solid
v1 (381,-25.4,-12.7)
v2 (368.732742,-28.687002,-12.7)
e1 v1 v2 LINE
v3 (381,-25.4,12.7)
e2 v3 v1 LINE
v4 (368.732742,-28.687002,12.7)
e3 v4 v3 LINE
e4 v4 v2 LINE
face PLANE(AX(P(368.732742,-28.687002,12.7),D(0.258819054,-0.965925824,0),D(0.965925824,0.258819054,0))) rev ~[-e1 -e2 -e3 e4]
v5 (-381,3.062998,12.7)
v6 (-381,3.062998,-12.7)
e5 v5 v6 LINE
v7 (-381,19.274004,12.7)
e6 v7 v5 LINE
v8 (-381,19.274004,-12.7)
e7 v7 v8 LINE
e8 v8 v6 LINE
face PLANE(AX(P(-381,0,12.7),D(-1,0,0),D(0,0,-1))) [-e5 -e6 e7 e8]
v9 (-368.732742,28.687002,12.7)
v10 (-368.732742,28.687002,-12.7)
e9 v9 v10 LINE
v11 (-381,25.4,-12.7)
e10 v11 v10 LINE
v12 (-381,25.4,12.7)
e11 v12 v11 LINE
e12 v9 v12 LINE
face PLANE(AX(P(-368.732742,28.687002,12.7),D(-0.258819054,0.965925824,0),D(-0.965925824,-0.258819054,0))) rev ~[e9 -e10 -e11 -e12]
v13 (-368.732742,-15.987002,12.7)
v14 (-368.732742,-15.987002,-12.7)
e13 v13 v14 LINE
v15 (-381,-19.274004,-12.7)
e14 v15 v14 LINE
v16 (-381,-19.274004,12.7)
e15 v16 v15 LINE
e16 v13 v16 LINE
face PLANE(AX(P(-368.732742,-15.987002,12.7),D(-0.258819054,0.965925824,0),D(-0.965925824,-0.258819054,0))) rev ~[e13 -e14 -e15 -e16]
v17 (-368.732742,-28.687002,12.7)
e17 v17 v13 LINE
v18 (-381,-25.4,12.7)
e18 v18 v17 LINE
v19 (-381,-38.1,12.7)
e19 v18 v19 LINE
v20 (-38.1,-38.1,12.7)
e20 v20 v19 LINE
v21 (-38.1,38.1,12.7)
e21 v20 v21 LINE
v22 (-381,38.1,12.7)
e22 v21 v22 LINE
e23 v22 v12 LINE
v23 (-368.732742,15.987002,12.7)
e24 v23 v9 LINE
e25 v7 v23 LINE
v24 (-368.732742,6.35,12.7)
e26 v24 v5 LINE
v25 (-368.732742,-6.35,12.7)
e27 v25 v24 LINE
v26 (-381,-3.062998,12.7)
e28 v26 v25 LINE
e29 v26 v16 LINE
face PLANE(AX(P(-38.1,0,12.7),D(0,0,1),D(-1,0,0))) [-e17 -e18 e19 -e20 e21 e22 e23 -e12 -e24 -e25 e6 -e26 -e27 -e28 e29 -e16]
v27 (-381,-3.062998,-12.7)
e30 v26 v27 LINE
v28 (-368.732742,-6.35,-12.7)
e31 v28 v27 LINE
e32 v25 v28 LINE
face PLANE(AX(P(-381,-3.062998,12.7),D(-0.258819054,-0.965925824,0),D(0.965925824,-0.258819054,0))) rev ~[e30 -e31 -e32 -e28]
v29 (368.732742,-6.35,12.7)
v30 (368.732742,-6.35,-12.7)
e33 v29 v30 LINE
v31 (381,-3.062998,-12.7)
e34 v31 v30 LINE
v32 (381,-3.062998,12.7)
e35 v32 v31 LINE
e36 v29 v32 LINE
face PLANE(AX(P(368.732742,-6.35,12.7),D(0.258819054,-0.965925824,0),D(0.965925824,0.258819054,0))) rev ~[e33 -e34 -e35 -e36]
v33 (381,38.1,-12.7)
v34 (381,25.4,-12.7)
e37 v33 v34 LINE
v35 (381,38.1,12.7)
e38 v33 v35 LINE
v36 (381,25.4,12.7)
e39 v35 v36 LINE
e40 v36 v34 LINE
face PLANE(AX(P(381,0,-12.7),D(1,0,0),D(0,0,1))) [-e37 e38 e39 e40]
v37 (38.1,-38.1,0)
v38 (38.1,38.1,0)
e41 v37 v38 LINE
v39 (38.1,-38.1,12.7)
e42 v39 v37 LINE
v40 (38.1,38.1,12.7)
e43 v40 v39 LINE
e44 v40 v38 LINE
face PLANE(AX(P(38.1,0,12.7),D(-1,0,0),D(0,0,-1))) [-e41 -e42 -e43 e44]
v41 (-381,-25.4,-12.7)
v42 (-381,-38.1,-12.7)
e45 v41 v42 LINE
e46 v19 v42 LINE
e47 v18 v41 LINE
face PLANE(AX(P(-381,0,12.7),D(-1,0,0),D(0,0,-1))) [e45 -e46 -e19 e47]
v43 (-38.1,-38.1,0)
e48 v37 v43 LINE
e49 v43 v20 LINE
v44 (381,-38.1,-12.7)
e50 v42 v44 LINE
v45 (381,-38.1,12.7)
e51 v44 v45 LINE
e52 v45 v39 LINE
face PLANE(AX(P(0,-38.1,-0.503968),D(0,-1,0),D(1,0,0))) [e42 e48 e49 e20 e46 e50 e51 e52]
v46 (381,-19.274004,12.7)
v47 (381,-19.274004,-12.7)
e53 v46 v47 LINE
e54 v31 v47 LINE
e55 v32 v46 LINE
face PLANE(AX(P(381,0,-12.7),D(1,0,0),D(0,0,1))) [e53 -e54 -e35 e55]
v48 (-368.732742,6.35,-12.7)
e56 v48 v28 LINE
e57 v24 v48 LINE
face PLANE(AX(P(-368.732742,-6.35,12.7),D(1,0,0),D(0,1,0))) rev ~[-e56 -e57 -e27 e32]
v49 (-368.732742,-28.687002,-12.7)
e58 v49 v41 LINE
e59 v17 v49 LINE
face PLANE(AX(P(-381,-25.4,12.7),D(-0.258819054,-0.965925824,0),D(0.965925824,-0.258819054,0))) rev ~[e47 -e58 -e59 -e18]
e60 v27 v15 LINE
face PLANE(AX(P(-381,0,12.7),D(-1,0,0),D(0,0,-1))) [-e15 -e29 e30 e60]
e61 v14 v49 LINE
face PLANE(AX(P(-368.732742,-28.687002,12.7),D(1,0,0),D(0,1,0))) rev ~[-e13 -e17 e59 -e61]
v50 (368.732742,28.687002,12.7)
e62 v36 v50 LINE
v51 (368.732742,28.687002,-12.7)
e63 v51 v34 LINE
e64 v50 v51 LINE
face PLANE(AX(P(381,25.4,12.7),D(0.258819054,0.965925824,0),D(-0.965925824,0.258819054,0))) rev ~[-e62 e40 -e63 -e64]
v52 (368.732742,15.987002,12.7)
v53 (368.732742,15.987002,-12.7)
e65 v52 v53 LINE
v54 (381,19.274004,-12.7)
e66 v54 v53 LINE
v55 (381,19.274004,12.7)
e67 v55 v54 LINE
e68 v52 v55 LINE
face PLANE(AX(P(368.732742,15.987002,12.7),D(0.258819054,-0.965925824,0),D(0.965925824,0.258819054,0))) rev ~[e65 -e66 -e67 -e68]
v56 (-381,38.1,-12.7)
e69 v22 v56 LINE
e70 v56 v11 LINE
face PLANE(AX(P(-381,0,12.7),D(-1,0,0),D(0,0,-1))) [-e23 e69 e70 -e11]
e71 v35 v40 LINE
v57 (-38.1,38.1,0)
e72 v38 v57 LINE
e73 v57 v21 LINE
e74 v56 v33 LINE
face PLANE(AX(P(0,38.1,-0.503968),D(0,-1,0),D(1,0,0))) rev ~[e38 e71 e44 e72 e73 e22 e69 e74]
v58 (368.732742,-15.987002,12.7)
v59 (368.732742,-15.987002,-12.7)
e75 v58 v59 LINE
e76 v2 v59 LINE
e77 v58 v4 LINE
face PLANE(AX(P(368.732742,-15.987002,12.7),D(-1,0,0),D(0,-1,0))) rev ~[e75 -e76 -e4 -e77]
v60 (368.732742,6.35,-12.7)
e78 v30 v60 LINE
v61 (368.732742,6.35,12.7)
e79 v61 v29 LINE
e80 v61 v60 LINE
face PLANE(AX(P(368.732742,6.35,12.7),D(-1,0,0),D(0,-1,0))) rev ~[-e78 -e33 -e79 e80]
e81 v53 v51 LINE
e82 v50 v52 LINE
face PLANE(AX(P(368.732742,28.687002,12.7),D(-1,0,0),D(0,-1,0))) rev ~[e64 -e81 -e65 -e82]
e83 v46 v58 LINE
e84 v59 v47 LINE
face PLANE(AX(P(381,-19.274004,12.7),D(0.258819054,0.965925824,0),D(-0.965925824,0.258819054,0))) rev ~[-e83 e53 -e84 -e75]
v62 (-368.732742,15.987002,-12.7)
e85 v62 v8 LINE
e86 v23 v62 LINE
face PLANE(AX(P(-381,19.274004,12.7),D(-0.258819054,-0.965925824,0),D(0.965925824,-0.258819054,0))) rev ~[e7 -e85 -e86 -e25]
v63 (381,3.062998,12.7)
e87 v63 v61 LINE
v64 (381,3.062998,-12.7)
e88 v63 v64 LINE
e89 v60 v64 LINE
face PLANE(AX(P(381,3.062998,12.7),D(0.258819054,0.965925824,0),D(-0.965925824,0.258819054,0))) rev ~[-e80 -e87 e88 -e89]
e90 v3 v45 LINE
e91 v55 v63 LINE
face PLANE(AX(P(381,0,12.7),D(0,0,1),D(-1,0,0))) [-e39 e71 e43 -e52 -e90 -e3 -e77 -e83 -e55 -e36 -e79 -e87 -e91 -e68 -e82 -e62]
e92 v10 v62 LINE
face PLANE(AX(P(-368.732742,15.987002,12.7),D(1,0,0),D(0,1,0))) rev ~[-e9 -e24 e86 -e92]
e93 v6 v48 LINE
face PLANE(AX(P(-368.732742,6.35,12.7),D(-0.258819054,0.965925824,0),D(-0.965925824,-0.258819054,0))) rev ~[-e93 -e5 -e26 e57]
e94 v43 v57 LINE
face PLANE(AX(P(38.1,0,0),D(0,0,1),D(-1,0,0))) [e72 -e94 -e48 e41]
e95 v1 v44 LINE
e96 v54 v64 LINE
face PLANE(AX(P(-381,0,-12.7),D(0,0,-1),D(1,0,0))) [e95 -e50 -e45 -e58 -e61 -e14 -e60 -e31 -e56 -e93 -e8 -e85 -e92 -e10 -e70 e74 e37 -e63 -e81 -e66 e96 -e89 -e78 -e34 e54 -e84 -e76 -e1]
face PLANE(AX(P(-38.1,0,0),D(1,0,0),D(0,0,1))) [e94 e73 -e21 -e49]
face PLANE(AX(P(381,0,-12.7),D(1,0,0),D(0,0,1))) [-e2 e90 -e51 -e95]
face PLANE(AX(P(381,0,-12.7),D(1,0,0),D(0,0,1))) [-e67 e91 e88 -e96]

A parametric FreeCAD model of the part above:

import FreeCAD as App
import Part
import Sketcher

V = App.Vector
Q = App.Units.Quantity

doc = App.newDocument("Part")
body = doc.addObject("PartDesign::Body", "Body")

# Sketch on XZ plane
sketch1 = body.newObject("Sketcher::SketchObject", "Sketch")
sketch1.AttachmentSupport = (doc.getObject("XZ_Plane"), [""])
sketch1.MapMode = "FlatFace"
sketch1.addGeometry(Part.LineSegment(V(-38, 13, 0), V(-381, 13, 0)), False)
sketch1.addGeometry(Part.LineSegment(V(-381, 13, 0), V(-381, -13, 0)), False)
sketch1.addGeometry(Part.LineSegment(V(-381, -13, 0), V(381, -13, 0)), False)
sketch1.addGeometry(Part.LineSegment(V(381, -13, 0), V(381, 13, 0)), False)
sketch1.addGeometry(Part.LineSegment(V(381, 13, 0), V(38, 13, 0)), False)
sketch1.addGeometry(Part.LineSegment(V(38, 13, 0), V(38, 0, 0)), False)
sketch1.addGeometry(Part.LineSegment(V(38, 0, 0), V(-38, 0, 0)), False)
sketch1.addGeometry(Part.LineSegment(V(-38, 0, 0), V(-38, 13, 0)), False)
sketch1.addConstraint(Sketcher.Constraint("Coincident", 0, 2, 1, 1))
sketch1.addConstraint(Sketcher.Constraint("Coincident", 1, 2, 2, 1))
sketch1.addConstraint(Sketcher.Constraint("Coincident", 2, 2, 3, 1))
sketch1.addConstraint(Sketcher.Constraint("Coincident", 3, 2, 4, 1))
sketch1.addConstraint(Sketcher.Constraint("Coincident", 4, 2, 5, 1))
sketch1.addConstraint(Sketcher.Constraint("Coincident", 5, 2, 6, 1))
sketch1.addConstraint(Sketcher.Constraint("Coincident", 6, 2, 7, 1))
sketch1.addConstraint(Sketcher.Constraint("Coincident", 7, 2, 0, 1))
sketch1.addConstraint(Sketcher.Constraint("Horizontal", 0))
sketch1.addConstraint(Sketcher.Constraint("Vertical", 1))
sketch1.addConstraint(Sketcher.Constraint("Horizontal", 2))
sketch1.addConstraint(Sketcher.Constraint("Vertical", 3))
sketch1.addConstraint(Sketcher.Constraint("Horizontal", 4))
sketch1.addConstraint(Sketcher.Constraint("Vertical", 5))
sketch1.addConstraint(Sketcher.Constraint("Horizontal", 6))
sketch1.addConstraint(Sketcher.Constraint("Vertical", 7))
sketch1.addConstraint(Sketcher.Constraint("Symmetric", 0, 2, 2, 2, -1, 1))
sketch1.addConstraint(Sketcher.Constraint("Symmetric", 5, 2, 6, 2, -1, 1))
sketch1.addConstraint(Sketcher.Constraint("Horizontal", 0, 2, 3, 2))
sketch1.addConstraint(Sketcher.Constraint("DistanceX", 2, 1, 2, 2, Q("30 in")))
sketch1.addConstraint(Sketcher.Constraint("DistanceX", 6, 2, 6, 1, Q("3 in")))
sketch1.addConstraint(Sketcher.Constraint("DistanceY", 1, 2, 1, 1, Q("1 in")))
pad1 = body.newObject("PartDesign::Pad", "Pad")
pad1.Profile = sketch1
pad1.Length = Q("3 in")
pad1.Midplane = True

# Sketch on XY plane
sketch2 = body.newObject("Sketcher::SketchObject", "Sketch001")
sketch2.AttachmentSupport = (doc.getObject("XY_Plane"), [""])
sketch2.MapMode = "FlatFace"
sketch2.AttachmentOffset = App.Placement(V(0, 0, 0.5 * 25.4), App.Rotation())
sketch2.addGeometry(Part.LineSegment(V(-369, 16, 0), V(-369, 29, 0)), False)
sketch2.addGeometry(Part.LineSegment(V(-369, 29, 0), V(-381, 25, 0)), False)
sketch2.addGeometry(Part.LineSegment(V(-381, 25, 0), V(-381, 19, 0)), False)
sketch2.addGeometry(Part.LineSegment(V(-381, 19, 0), V(-369, 16, 0)), False)
sketch2.addGeometry(Part.LineSegment(V(-369, 6, 0), V(-381, 3, 0)), False)
sketch2.addGeometry(Part.LineSegment(V(-381, 3, 0), V(-381, -3, 0)), False)
sketch2.addGeometry(Part.LineSegment(V(-381, -3, 0), V(-369, -6, 0)), False)
sketch2.addGeometry(Part.LineSegment(V(-369, -6, 0), V(-369, 6, 0)), False)
sketch2.addGeometry(Part.LineSegment(V(-369, -29, 0), V(-369, -16, 0)), False)
sketch2.addGeometry(Part.LineSegment(V(-369, -16, 0), V(-381, -19, 0)), False)
sketch2.addGeometry(Part.LineSegment(V(-381, -19, 0), V(-381, -25, 0)), False)
sketch2.addGeometry(Part.LineSegment(V(-381, -25, 0), V(-369, -29, 0)), False)
sketch2.addGeometry(Part.LineSegment(V(381, 19, 0), V(381, 25, 0)), False)
sketch2.addGeometry(Part.LineSegment(V(381, 25, 0), V(369, 29, 0)), False)
sketch2.addGeometry(Part.LineSegment(V(369, 29, 0), V(369, 16, 0)), False)
sketch2.addGeometry(Part.LineSegment(V(369, 16, 0), V(381, 19, 0)), False)
sketch2.addGeometry(Part.LineSegment(V(381, -3, 0), V(381, 3, 0)), False)
sketch2.addGeometry(Part.LineSegment(V(381, 3, 0), V(369, 6, 0)), False)
sketch2.addGeometry(Part.LineSegment(V(369, 6, 0), V(369, -6, 0)), False)
sketch2.addGeometry(Part.LineSegment(V(369, -6, 0), V(381, -3, 0)), False)
sketch2.addGeometry(Part.LineSegment(V(381, -25, 0), V(381, -19, 0)), False)
sketch2.addGeometry(Part.LineSegment(V(381, -19, 0), V(369, -16, 0)), False)
sketch2.addGeometry(Part.LineSegment(V(369, -16, 0), V(369, -29, 0)), False)
sketch2.addGeometry(Part.LineSegment(V(369, -29, 0), V(381, -25, 0)), False)
sketch2.addConstraint(Sketcher.Constraint("Coincident", 0, 2, 1, 1))
sketch2.addConstraint(Sketcher.Constraint("Coincident", 1, 2, 2, 1))
sketch2.addConstraint(Sketcher.Constraint("Coincident", 2, 2, 3, 1))
sketch2.addConstraint(Sketcher.Constraint("Coincident", 3, 2, 0, 1))
sketch2.addConstraint(Sketcher.Constraint("Coincident", 4, 2, 5, 1))
sketch2.addConstraint(Sketcher.Constraint("Coincident", 5, 2, 6, 1))
sketch2.addConstraint(Sketcher.Constraint("Coincident", 6, 2, 7, 1))
sketch2.addConstraint(Sketcher.Constraint("Coincident", 7, 2, 4, 1))
sketch2.addConstraint(Sketcher.Constraint("Coincident", 8, 2, 9, 1))
sketch2.addConstraint(Sketcher.Constraint("Coincident", 9, 2, 10, 1))
sketch2.addConstraint(Sketcher.Constraint("Coincident", 10, 2, 11, 1))
sketch2.addConstraint(Sketcher.Constraint("Coincident", 11, 2, 8, 1))
sketch2.addConstraint(Sketcher.Constraint("Coincident", 12, 2, 13, 1))
sketch2.addConstraint(Sketcher.Constraint("Coincident", 13, 2, 14, 1))
sketch2.addConstraint(Sketcher.Constraint("Coincident", 14, 2, 15, 1))
sketch2.addConstraint(Sketcher.Constraint("Coincident", 15, 2, 12, 1))
sketch2.addConstraint(Sketcher.Constraint("Coincident", 16, 2, 17, 1))
sketch2.addConstraint(Sketcher.Constraint("Coincident", 17, 2, 18, 1))
sketch2.addConstraint(Sketcher.Constraint("Coincident", 18, 2, 19, 1))
sketch2.addConstraint(Sketcher.Constraint("Coincident", 19, 2, 16, 1))
sketch2.addConstraint(Sketcher.Constraint("Coincident", 20, 2, 21, 1))
sketch2.addConstraint(Sketcher.Constraint("Coincident", 21, 2, 22, 1))
sketch2.addConstraint(Sketcher.Constraint("Coincident", 22, 2, 23, 1))
sketch2.addConstraint(Sketcher.Constraint("Coincident", 23, 2, 20, 1))
sketch2.addConstraint(Sketcher.Constraint("Vertical", 0))
sketch2.addConstraint(Sketcher.Constraint("Vertical", 2))
sketch2.addConstraint(Sketcher.Constraint("Vertical", 5))
sketch2.addConstraint(Sketcher.Constraint("Vertical", 7))
sketch2.addConstraint(Sketcher.Constraint("Vertical", 8))
sketch2.addConstraint(Sketcher.Constraint("Vertical", 10))
sketch2.addConstraint(Sketcher.Constraint("Vertical", 12))
sketch2.addConstraint(Sketcher.Constraint("Vertical", 14))
sketch2.addConstraint(Sketcher.Constraint("Vertical", 16))
sketch2.addConstraint(Sketcher.Constraint("Vertical", 18))
sketch2.addConstraint(Sketcher.Constraint("Vertical", 20))
sketch2.addConstraint(Sketcher.Constraint("Vertical", 22))
sketch2.addConstraint(Sketcher.Constraint("Symmetric", 10, 2, 12, 2, -1, 1))
sketch2.addConstraint(Sketcher.Constraint("Symmetric", 11, 2, 13, 2, -1, 1))
sketch2.addConstraint(Sketcher.Constraint("Symmetric", 5, 2, 16, 2, -1, 1))
sketch2.addConstraint(Sketcher.Constraint("Symmetric", 6, 2, 17, 2, -1, 1))
sketch2.addConstraint(Sketcher.Constraint("Symmetric", 2, 2, 20, 2, -1, 1))
sketch2.addConstraint(Sketcher.Constraint("Symmetric", 3, 2, 21, 2, -1, 1))
sketch2.addConstraint(Sketcher.Constraint("Symmetric", 1, 2, 12, 2, -2))
sketch2.addConstraint(Sketcher.Constraint("Symmetric", 0, 2, 13, 2, -2))
sketch2.addConstraint(Sketcher.Constraint("Parallel", 1, 4))
sketch2.addConstraint(Sketcher.Constraint("Parallel", 3, 6))
sketch2.addConstraint(Sketcher.Constraint("Parallel", 4, 9))
sketch2.addConstraint(Sketcher.Constraint("Parallel", 6, 11))
sketch2.addConstraint(Sketcher.Constraint("Parallel", 9, 15))
sketch2.addConstraint(Sketcher.Constraint("Parallel", 15, 19))
sketch2.addConstraint(Sketcher.Constraint("Parallel", 19, 23))
sketch2.addConstraint(Sketcher.Constraint("Horizontal", 3, 2, 14, 2))
sketch2.addConstraint(Sketcher.Constraint("Horizontal", 4, 2, 16, 2))
sketch2.addConstraint(Sketcher.Constraint("Horizontal", 6, 2, 18, 2))
sketch2.addConstraint(Sketcher.Constraint("Horizontal", 9, 2, 20, 2))
sketch2.addConstraint(Sketcher.Constraint("Horizontal", 11, 2, 22, 2))
sketch2.addConstraint(Sketcher.Constraint("Vertical", 2, 2, 4, 2))
sketch2.addConstraint(Sketcher.Constraint("Vertical", 3, 2, 6, 2))
sketch2.addConstraint(Sketcher.Constraint("Equal", 2, 5))
sketch2.addConstraint(Sketcher.Constraint("DistanceY", 0, 1, 0, 2, Q("0.5 in")))
sketch2.addConstraint(Sketcher.Constraint("DistanceX", 1, 2, -1, 1, Q("15 in")))
sketch2.addConstraint(Sketcher.Constraint("DistanceY", -1, 1, 1, 2, Q("1 in")))
sketch2.addConstraint(Sketcher.Constraint("Angle", 1, Q("-164.999999 deg")))
sketch2.addConstraint(Sketcher.Constraint("Distance", 1, Q("0.5 in")))
pocket1 = body.newObject("PartDesign::Pocket", "Pocket")
pocket1.Profile = sketch2
pocket1.Type = "ThroughAll"

doc.recompute()
